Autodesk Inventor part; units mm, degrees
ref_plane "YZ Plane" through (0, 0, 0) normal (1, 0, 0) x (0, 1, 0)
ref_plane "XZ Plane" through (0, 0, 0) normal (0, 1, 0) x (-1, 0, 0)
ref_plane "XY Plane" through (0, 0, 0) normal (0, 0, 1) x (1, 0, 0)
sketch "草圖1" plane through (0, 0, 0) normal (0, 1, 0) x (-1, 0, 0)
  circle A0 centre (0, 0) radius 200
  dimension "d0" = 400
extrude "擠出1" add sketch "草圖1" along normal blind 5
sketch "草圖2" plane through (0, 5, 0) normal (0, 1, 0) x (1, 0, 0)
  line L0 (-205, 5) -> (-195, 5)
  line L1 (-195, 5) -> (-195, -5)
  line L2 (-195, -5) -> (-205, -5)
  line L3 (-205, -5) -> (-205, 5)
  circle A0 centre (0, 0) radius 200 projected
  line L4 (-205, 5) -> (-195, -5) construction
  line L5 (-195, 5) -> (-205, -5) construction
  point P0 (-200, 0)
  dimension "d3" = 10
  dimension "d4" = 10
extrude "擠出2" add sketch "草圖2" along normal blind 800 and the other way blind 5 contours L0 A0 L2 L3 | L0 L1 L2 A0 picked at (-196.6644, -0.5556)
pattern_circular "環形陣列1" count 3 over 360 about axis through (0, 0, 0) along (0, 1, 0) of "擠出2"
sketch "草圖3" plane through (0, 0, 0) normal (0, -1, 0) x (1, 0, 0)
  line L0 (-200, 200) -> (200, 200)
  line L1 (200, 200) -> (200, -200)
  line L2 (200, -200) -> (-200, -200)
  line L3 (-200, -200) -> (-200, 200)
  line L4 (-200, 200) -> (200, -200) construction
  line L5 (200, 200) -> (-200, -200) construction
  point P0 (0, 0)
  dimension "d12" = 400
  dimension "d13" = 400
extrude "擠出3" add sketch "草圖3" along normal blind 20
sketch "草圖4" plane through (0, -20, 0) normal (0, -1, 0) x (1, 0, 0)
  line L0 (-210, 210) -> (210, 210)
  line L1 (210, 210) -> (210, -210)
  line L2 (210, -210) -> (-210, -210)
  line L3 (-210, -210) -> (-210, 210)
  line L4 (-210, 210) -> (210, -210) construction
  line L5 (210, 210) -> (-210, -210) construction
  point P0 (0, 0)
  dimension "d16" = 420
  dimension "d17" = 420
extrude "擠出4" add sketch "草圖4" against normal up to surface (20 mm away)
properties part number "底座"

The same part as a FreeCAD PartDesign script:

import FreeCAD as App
import Part
import Sketcher

V = App.Vector


def add_polygon(sketch, points):
    """Adds a closed chain of lines whose ends are joined by coincident constraints."""
    first, n = sketch.GeometryCount, len(points)
    for a, b in zip(points, points[1:] + points[:1]):
        sketch.addGeometry(Part.LineSegment(App.Vector(*a, 0), App.Vector(*b, 0)), False)
    for i in range(n):
        sketch.addConstraint(Sketcher.Constraint("Coincident", first + i, 2, first + (i + 1) % n, 1))

doc = App.newDocument("Part")
params = doc.addObject("Spreadsheet::Sheet", "Params")
for row, (alias, value) in enumerate([
    ("sketch1_diameter", "400 mm"),
    ("pad1_length", "5 mm"),
    ("sketch2_width", "10 mm"),
    ("pad2_length", "800 mm"),
    ("pad2_length2", "5 mm"),
    ("sketch3_width", "400 mm"),
    ("pad3_length", "20 mm"),
    ("sketch4_width", "420 mm"),
    ("pad4_length", "20 mm"),
], start=1):
    params.set(f"A{row}", alias)
    params.set(f"B{row}", "=" + value)
    params.setAlias(f"B{row}", alias)

body = doc.addObject("PartDesign::Body", "Body")

# Sketch on XZ plane
sketch1 = body.newObject("Sketcher::SketchObject", "Sketch")
sketch1.AttachmentSupport = (doc.getObject("XZ_Plane"), [""])
sketch1.MapMode = "FlatFace"
sketch1.addGeometry(Part.Circle(V(0, 0, 0), V(0, 0, 1), 200), False)
sketch1.addConstraint([
    Sketcher.Constraint("Coincident", 0, 3, -1, 1),
    Sketcher.Constraint("Diameter", 0, 400.0),
])
sketch1.setExpression("Constraints[1]", "Params.sketch1_diameter")
pad1 = body.newObject("PartDesign::Pad", "Pad")
pad1.Profile = sketch1
pad1.setExpression("Length", "Params.pad1_length")
pad1.Reversed = True

# Sketch on XZ plane
sketch2 = body.newObject("Sketcher::SketchObject", "Sketch001")
sketch2.AttachmentSupport = (doc.getObject("XZ_Plane"), [""])
sketch2.MapMode = "FlatFace"
sketch2.AttachmentOffset = App.Placement(V(0, 0, -5), App.Rotation())
add_polygon(sketch2, [(-205, -5), (-205, 5), (-195, 5), (-195, -5)])  # lines 0-3
sketch2.addConstraint([
    Sketcher.Constraint("Vertical", 0),
    Sketcher.Constraint("Horizontal", 1),
    Sketcher.Constraint("Vertical", 2),
    Sketcher.Constraint("Horizontal", 3),
    Sketcher.Constraint("Equal", 3, 0),
    Sketcher.Constraint("DistanceX", 1, 1, 1, 2, 10.0),
    Sketcher.Constraint("DistanceX", 0, 2, -1, 1, 205.0),
    Sketcher.Constraint("DistanceY", -1, 1, 0, 2, 5.0),
])
sketch2.setExpression("Constraints[9]", "Params.sketch2_width")
pad2 = body.newObject("PartDesign::Pad", "Pad001")
pad2.Profile = sketch2
pad2.Type = "TwoLengths"
pad2.setExpression("Length", "Params.pad2_length")
pad2.setExpression("Length2", "Params.pad2_length2")
pad2.Reversed = True
doc.recompute()

polarpattern = body.newObject("PartDesign::PolarPattern", "PolarPattern")
polarpattern.Originals = [pad2]
polarpattern.Axis = (doc.getObject("Y_Axis"), [""])
polarpattern.Angle = 360
polarpattern.Occurrences = 3
body.Tip = polarpattern

# Sketch on XZ plane
sketch3 = body.newObject("Sketcher::SketchObject", "Sketch002")
sketch3.AttachmentSupport = (doc.getObject("XZ_Plane"), [""])
sketch3.MapMode = "FlatFace"
add_polygon(sketch3, [(200, 200), (-200, 200), (-200, -200), (200, -200)])  # lines 0-3
sketch3.addConstraint([
    Sketcher.Constraint("Horizontal", 0),
    Sketcher.Constraint("Vertical", 1),
    Sketcher.Constraint("Horizontal", 2),
    Sketcher.Constraint("Vertical", 3),
    Sketcher.Constraint("Symmetric", 0, 2, 2, 2, -1, 1),
    Sketcher.Constraint("Equal", 2, 1),
    Sketcher.Constraint("DistanceX", 0, 2, 0, 1, 400.0),
])
sketch3.setExpression("Constraints[10]", "Params.sketch3_width")
pad3 = body.newObject("PartDesign::Pad", "Pad002")
pad3.Profile = sketch3
pad3.setExpression("Length", "Params.pad3_length")

# Sketch on XZ plane
sketch4 = body.newObject("Sketcher::SketchObject", "Sketch003")
sketch4.AttachmentSupport = (doc.getObject("XZ_Plane"), [""])
sketch4.MapMode = "FlatFace"
sketch4.AttachmentOffset = App.Placement(V(0, 0, 20), App.Rotation())
add_polygon(sketch4, [(210, 210), (-210, 210), (-210, -210), (210, -210)])  # lines 0-3
sketch4.addConstraint([
    Sketcher.Constraint("Horizontal", 0),
    Sketcher.Constraint("Vertical", 1),
    Sketcher.Constraint("Horizontal", 2),
    Sketcher.Constraint("Vertical", 3),
    Sketcher.Constraint("Symmetric", 0, 2, 2, 2, -1, 1),
    Sketcher.Constraint("Equal", 2, 1),
    Sketcher.Constraint("DistanceX", 0, 2, 0, 1, 420.0),
])
sketch4.setExpression("Constraints[10]", "Params.sketch4_width")
pad4 = body.newObject("PartDesign::Pad", "Pad003")
pad4.Profile = sketch4
pad4.setExpression("Length", "Params.pad4_length")
pad4.Reversed = True

doc.recompute()
